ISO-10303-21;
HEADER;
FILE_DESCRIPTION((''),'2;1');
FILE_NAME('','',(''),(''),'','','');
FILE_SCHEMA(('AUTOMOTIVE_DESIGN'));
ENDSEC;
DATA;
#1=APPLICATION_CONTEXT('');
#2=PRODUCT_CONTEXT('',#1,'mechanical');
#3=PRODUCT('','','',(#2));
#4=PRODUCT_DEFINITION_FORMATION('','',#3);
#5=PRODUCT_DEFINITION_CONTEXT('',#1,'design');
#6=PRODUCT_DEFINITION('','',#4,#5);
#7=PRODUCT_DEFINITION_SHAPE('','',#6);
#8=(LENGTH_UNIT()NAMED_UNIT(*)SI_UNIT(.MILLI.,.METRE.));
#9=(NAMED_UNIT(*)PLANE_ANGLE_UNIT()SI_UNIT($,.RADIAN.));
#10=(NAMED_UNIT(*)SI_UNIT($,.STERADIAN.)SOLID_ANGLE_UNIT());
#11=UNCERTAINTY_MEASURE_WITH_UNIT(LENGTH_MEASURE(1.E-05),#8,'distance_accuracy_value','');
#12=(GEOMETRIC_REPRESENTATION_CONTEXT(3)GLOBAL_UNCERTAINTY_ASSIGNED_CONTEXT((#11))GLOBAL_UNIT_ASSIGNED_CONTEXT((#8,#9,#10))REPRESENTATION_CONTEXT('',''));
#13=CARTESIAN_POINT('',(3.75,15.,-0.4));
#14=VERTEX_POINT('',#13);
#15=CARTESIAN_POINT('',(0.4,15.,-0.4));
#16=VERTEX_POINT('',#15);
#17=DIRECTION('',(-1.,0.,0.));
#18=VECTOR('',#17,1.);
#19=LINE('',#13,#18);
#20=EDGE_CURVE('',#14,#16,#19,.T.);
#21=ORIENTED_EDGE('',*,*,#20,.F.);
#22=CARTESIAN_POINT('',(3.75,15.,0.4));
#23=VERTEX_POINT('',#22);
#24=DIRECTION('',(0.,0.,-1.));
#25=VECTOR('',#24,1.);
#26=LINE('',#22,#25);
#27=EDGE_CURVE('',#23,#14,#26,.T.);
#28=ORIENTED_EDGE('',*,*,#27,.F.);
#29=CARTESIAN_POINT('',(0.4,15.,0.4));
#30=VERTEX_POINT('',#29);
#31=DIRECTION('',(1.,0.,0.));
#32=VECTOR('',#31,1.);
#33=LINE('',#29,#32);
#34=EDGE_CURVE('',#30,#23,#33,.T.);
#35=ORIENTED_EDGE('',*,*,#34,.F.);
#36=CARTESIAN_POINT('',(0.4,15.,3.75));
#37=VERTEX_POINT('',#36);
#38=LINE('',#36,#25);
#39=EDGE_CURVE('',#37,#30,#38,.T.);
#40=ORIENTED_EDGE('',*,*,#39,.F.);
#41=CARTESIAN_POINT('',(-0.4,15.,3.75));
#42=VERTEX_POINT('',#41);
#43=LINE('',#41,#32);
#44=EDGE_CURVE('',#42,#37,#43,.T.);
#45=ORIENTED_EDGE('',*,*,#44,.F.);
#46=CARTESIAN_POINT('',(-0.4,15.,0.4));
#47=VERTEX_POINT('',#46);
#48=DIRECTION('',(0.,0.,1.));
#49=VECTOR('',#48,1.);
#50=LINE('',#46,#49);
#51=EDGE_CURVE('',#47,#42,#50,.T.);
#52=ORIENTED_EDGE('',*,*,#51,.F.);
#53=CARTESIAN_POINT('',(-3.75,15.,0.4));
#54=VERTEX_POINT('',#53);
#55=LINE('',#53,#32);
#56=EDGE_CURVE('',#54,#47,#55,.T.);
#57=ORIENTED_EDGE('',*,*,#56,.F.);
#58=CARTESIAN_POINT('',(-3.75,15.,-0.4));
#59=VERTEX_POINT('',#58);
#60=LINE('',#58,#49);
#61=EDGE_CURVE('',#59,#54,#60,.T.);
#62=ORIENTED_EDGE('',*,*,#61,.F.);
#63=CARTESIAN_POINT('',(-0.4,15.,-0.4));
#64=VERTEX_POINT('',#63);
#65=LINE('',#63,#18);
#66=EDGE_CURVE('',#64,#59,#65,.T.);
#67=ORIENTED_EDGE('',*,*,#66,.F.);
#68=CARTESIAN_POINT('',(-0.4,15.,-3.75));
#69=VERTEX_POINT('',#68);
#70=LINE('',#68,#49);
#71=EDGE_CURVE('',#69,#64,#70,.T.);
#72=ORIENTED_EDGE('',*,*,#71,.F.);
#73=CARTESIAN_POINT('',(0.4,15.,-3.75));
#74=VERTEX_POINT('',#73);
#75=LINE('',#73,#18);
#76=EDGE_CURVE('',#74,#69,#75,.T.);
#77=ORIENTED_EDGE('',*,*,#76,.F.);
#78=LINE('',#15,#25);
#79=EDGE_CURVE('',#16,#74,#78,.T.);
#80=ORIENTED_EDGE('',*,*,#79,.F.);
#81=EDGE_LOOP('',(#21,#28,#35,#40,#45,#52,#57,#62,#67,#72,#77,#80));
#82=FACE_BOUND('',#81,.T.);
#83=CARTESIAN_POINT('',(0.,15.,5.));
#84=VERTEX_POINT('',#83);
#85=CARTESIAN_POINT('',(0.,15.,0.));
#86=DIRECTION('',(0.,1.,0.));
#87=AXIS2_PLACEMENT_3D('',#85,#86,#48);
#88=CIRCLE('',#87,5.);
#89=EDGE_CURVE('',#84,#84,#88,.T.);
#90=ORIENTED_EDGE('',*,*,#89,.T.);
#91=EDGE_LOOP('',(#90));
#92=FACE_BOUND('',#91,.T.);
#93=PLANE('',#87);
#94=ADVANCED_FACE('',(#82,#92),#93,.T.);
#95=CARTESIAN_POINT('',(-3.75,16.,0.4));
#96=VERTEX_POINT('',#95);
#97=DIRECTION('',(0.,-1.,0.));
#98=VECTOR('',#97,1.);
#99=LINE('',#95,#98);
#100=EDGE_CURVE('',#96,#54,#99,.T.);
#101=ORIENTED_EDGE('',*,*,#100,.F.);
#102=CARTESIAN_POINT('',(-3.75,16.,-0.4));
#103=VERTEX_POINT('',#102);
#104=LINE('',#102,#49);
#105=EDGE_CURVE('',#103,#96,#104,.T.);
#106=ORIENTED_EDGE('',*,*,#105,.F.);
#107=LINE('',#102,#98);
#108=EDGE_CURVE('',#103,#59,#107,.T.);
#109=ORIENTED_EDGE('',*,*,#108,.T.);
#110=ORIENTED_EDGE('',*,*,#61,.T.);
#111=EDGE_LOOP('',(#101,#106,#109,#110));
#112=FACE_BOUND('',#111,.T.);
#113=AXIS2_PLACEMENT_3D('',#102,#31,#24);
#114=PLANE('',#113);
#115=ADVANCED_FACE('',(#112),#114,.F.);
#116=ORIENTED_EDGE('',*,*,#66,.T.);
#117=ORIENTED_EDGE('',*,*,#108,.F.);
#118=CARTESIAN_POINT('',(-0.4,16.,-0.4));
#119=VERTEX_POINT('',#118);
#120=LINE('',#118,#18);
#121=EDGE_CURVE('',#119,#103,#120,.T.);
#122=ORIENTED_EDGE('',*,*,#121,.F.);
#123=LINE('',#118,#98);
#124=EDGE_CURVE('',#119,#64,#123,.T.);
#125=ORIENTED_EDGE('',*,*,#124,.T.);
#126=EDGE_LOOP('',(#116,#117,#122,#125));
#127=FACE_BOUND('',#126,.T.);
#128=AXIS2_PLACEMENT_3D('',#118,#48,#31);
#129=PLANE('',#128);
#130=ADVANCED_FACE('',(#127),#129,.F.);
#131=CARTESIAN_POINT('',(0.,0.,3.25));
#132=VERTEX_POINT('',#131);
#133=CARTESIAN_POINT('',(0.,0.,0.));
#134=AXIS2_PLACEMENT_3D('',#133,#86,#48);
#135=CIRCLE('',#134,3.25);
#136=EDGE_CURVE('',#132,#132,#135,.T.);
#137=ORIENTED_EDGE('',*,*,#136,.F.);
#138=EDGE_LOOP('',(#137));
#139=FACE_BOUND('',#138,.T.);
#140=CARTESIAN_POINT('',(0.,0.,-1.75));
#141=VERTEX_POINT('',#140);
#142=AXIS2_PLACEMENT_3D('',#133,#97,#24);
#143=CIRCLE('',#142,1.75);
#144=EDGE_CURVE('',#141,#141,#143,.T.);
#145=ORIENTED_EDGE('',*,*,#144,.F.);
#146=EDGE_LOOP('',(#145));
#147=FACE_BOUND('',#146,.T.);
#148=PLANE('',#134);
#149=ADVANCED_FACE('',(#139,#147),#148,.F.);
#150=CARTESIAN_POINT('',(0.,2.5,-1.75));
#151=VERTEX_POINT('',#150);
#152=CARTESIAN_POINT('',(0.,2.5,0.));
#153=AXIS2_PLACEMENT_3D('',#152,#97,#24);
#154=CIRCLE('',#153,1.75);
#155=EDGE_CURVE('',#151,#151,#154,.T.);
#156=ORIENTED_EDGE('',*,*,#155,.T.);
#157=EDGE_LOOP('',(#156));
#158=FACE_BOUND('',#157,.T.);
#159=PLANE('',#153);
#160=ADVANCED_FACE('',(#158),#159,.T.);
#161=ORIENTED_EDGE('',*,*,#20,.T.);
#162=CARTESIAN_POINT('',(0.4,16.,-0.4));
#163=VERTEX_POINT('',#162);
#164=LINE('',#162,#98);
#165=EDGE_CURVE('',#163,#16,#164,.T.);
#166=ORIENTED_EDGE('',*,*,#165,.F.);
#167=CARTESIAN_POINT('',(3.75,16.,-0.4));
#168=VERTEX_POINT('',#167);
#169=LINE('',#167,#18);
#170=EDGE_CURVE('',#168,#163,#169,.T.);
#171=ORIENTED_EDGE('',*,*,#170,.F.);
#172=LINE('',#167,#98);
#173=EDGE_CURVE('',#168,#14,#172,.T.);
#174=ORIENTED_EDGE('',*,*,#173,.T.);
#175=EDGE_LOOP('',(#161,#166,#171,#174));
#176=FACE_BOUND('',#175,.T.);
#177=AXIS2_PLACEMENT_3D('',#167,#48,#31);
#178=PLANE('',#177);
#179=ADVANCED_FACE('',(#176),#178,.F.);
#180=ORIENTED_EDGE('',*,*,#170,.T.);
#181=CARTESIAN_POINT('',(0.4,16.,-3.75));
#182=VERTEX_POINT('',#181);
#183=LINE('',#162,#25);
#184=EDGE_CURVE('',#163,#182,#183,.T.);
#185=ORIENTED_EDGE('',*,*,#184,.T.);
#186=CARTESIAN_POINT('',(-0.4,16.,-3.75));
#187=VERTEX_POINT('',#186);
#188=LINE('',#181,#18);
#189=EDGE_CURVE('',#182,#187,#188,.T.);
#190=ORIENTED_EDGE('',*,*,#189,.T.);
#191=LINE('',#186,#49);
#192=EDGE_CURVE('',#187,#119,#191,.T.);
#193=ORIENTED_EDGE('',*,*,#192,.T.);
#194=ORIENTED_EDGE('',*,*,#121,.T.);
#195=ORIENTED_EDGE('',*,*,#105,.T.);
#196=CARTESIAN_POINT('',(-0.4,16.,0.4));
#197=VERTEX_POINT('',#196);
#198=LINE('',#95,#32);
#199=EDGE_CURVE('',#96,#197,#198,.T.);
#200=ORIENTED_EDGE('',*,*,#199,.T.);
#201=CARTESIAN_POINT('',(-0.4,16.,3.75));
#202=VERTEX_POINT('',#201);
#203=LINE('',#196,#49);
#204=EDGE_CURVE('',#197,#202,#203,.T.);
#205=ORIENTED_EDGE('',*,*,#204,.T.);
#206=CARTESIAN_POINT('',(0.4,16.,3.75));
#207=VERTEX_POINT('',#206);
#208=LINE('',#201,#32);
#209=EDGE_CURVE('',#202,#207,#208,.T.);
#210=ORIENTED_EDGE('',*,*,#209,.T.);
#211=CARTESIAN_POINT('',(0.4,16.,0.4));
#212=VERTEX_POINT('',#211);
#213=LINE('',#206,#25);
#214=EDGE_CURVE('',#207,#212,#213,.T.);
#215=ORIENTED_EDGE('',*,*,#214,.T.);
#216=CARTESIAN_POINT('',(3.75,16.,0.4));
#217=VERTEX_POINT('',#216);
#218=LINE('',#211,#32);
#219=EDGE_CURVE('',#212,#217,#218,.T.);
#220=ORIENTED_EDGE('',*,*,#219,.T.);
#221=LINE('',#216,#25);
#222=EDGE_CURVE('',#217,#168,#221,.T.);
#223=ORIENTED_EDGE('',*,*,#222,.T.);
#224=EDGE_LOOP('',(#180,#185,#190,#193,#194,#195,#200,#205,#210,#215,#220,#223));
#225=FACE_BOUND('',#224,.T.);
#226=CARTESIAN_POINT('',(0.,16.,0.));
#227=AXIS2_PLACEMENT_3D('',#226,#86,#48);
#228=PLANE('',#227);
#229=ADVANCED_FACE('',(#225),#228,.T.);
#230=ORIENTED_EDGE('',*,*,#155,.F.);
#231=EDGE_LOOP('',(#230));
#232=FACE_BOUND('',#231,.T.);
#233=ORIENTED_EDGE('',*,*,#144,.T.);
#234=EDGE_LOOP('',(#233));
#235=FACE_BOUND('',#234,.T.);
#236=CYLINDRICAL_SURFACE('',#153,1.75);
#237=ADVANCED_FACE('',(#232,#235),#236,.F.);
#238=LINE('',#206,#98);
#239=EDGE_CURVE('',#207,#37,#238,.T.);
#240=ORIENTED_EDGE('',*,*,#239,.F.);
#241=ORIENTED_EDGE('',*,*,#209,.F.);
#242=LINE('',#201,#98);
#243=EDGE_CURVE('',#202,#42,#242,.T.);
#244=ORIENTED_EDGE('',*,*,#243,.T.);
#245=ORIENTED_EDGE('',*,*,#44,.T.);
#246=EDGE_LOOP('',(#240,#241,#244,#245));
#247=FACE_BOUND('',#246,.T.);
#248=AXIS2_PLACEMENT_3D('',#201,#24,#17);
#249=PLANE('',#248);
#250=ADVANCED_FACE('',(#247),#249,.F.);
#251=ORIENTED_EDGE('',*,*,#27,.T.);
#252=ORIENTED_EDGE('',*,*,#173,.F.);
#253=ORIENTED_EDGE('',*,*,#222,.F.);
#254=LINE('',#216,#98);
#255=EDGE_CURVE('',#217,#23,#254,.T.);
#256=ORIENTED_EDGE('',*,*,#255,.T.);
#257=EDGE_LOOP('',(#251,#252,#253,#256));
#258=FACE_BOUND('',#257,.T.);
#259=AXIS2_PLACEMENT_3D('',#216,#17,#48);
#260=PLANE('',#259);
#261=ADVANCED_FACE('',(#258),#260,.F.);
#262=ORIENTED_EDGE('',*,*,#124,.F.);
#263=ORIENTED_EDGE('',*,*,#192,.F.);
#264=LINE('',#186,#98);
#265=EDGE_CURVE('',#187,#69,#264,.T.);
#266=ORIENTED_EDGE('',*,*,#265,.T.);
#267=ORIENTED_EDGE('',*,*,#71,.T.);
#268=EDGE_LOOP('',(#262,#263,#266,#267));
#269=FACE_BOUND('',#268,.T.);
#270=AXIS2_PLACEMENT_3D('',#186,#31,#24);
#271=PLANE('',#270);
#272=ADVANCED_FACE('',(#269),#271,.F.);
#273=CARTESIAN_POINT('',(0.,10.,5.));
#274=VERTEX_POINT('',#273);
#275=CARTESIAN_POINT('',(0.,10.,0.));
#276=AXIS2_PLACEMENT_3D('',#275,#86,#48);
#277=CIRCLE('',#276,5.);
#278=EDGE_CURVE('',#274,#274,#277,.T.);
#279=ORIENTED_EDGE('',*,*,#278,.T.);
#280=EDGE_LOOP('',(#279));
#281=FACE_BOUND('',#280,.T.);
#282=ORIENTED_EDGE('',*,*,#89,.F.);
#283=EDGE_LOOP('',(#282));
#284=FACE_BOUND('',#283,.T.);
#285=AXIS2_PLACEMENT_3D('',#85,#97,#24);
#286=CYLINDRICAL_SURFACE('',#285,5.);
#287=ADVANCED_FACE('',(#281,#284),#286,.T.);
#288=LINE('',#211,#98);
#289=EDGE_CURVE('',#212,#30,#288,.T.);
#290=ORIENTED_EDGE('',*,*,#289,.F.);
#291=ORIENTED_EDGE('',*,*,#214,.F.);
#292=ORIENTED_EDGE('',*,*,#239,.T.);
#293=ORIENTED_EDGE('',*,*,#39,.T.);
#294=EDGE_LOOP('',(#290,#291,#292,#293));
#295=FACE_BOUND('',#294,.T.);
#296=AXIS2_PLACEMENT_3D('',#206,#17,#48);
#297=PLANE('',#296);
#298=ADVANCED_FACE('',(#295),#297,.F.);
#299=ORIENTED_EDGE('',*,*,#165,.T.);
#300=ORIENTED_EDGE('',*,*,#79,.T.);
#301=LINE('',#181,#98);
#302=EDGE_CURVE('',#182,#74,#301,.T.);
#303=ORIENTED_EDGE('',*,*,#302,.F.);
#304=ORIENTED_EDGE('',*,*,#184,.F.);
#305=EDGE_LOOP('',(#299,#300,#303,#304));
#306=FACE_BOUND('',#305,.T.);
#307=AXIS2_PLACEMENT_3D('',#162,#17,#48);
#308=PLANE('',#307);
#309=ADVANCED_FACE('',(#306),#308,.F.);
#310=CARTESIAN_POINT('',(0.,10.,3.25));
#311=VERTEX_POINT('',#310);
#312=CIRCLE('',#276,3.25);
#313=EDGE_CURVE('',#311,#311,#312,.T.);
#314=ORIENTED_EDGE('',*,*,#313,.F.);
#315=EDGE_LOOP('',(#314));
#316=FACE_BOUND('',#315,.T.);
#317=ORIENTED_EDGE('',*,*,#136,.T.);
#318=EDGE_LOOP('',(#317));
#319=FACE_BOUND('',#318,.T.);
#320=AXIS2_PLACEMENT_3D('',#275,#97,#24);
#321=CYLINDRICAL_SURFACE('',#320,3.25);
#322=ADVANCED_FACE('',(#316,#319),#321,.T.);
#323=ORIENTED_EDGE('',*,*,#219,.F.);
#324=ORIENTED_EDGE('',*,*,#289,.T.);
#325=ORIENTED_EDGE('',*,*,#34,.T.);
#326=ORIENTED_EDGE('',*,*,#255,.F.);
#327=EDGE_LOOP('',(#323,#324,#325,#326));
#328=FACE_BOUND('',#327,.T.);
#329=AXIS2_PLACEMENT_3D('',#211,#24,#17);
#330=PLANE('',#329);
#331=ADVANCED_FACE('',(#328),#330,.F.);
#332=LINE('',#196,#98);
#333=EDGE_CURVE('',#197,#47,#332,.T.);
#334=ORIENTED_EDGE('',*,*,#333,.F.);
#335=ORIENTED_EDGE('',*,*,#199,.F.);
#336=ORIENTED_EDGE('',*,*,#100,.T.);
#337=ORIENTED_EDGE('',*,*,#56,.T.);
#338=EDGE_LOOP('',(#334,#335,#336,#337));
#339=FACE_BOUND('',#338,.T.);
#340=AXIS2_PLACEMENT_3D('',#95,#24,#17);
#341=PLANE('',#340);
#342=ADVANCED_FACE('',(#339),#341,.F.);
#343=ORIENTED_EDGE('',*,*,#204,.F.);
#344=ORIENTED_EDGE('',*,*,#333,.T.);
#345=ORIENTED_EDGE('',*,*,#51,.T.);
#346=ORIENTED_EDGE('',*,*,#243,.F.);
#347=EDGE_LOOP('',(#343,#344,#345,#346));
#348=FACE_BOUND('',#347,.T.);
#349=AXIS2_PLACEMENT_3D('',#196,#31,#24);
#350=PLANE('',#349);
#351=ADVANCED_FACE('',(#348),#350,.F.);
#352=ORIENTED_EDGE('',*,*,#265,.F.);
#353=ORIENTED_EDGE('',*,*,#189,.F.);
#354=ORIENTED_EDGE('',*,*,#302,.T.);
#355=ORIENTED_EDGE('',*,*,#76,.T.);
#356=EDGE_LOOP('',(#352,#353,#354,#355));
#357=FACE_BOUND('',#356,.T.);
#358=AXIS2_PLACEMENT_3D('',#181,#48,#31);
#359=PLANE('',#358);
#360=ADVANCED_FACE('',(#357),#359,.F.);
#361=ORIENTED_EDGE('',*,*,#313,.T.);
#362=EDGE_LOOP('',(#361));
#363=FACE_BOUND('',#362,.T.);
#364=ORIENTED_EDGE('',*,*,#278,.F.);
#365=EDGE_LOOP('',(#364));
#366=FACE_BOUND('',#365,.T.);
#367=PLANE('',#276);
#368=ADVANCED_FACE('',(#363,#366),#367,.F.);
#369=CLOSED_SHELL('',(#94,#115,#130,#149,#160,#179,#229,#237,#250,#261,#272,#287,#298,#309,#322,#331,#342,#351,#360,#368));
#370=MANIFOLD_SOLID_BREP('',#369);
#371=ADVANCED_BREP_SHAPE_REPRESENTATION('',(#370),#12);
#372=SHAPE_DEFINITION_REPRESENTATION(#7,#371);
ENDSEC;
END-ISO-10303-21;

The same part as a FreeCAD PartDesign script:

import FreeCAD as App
import Part
import Sketcher

V = App.Vector


def add_polygon(sketch, points):
    """Adds a closed chain of lines whose ends are joined by coincident constraints."""
    first, n = sketch.GeometryCount, len(points)
    for a, b in zip(points, points[1:] + points[:1]):
        sketch.addGeometry(Part.LineSegment(App.Vector(*a, 0), App.Vector(*b, 0)), False)
    for i in range(n):
        sketch.addConstraint(Sketcher.Constraint("Coincident", first + i, 2, first + (i + 1) % n, 1))

doc = App.newDocument("Part")
body = doc.addObject("PartDesign::Body", "Body")

# Sketch on XZ plane
sketch1 = body.newObject("Sketcher::SketchObject", "Sketch")
sketch1.AttachmentSupport = (doc.getObject("XZ_Plane"), [""])
sketch1.MapMode = "FlatFace"
sketch1.addGeometry(Part.Circle(V(0, 0, 0), V(0, 0, 1), 3.25), False)
sketch1.addConstraint([
    Sketcher.Constraint("Coincident", 0, 3, -1, 1),
    Sketcher.Constraint("Diameter", 0, 6.5),
])
pad1 = body.newObject("PartDesign::Pad", "Pad")
pad1.Profile = sketch1
pad1.Length = 10
pad1.Reversed = True

# Sketch on XZ plane
sketch2 = body.newObject("Sketcher::SketchObject", "Sketch001")
sketch2.AttachmentSupport = (doc.getObject("XZ_Plane"), [""])
sketch2.MapMode = "FlatFace"
sketch2.addGeometry(Part.Circle(V(0, 0, 0), V(0, 0, 1), 1.75), False)
sketch2.addConstraint([
    Sketcher.Constraint("Coincident", 0, 3, -1, 1),
    Sketcher.Constraint("Diameter", 0, 3.5),
])
pocket1 = body.newObject("PartDesign::Pocket", "Pocket")
pocket1.Profile = sketch2
pocket1.Length = 2.5

# Sketch on XZ plane
sketch3 = body.newObject("Sketcher::SketchObject", "Sketch002")
sketch3.AttachmentSupport = (doc.getObject("XZ_Plane"), [""])
sketch3.MapMode = "FlatFace"
sketch3.AttachmentOffset = App.Placement(V(0, 0, -10), App.Rotation())
sketch3.addGeometry(Part.Circle(V(0, 0, 0), V(0, 0, 1), 5), False)
sketch3.addConstraint([
    Sketcher.Constraint("Coincident", 0, 3, -1, 1),
    Sketcher.Constraint("Diameter", 0, 10.0),
])
pad2 = body.newObject("PartDesign::Pad", "Pad001")
pad2.Profile = sketch3
pad2.Length = 5
pad2.Reversed = True

# Sketch on XZ plane
sketch4 = body.newObject("Sketcher::SketchObject", "Sketch003")
sketch4.AttachmentSupport = (doc.getObject("XZ_Plane"), [""])
sketch4.MapMode = "FlatFace"
sketch4.AttachmentOffset = App.Placement(V(0, 0, -15), App.Rotation())
add_polygon(sketch4, [(0.4, -3.75), (-0.4, -3.75), (-0.4, -0.4), (-3.75, -0.4), (-3.75, 0.4), (-0.4, 0.4), (-0.4, 3.75), (0.4, 3.75), (0.4, 0.4), (3.75, 0.4), (3.75, -0.4), (0.4, -0.4)])  # lines 0-11
sketch4.addConstraint([
    Sketcher.Constraint("Horizontal", 0),
    Sketcher.Constraint("Vertical", 1),
    Sketcher.Constraint("Horizontal", 2),
    Sketcher.Constraint("Vertical", 3),
    Sketcher.Constraint("Horizontal", 4),
    Sketcher.Constraint("Vertical", 5),
    Sketcher.Constraint("Horizontal", 6),
    Sketcher.Constraint("Vertical", 7),
    Sketcher.Constraint("Horizontal", 8),
    Sketcher.Constraint("Vertical", 9),
    Sketcher.Constraint("Horizontal", 10),
    Sketcher.Constraint("Vertical", 11),
    Sketcher.Constraint("Symmetric", 0, 2, 6, 2, -1, 1),
    Sketcher.Constraint("Symmetric", 2, 2, 8, 2, -1, 1),
    Sketcher.Constraint("Symmetric", 4, 2, 10, 2, -1, 1),
    Sketcher.Constraint("Symmetric", 4, 2, 7, 2, -2),
    Sketcher.Constraint("Equal", 10, 1),
    Sketcher.Constraint("Equal", 6, 3),
    Sketcher.Constraint("DistanceX", 0, 2, 0, 1, 0.8),
    Sketcher.Constraint("DistanceX", 2, 2, 2, 1, 3.35),
])
pad3 = body.newObject("PartDesign::Pad", "Pad002")
pad3.Profile = sketch4
pad3.Length = 1
pad3.Reversed = True

doc.recompute()
